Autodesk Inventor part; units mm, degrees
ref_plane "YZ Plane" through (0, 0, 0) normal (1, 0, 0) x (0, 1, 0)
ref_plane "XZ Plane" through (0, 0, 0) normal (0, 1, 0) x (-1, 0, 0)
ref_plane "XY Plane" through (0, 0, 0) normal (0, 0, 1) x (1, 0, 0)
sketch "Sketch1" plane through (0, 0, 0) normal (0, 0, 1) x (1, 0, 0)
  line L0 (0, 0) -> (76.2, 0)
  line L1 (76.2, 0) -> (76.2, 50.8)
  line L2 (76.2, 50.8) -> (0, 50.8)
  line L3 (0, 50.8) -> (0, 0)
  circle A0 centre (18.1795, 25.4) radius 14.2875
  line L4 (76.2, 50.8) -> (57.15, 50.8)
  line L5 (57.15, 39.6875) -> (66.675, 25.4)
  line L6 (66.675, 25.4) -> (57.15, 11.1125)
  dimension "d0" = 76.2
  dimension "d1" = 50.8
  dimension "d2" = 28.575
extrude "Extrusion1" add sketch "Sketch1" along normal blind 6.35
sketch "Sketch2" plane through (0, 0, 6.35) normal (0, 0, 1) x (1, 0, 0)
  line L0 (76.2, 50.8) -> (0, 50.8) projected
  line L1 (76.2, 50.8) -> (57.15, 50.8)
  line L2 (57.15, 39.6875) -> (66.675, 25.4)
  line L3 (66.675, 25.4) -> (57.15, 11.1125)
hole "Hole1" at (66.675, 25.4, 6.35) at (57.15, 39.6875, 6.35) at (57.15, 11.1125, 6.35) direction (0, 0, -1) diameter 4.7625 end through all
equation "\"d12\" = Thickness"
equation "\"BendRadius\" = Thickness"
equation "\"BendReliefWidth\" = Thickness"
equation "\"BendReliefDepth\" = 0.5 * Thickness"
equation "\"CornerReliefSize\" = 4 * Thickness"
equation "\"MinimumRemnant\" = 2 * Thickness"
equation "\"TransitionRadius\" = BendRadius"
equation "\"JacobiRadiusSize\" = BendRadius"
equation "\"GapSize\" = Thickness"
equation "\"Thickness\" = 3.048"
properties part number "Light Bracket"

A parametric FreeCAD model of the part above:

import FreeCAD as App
import Part
import Sketcher
from FreeCAD import Vector
Q = App.Units.Quantity

doc = App.newDocument("Part")
body = doc.addObject("PartDesign::Body", "Body")

sketch1 = doc.addObject("Sketcher::SketchObject", "Sketch")
body.addObject(sketch1)
sketch1.AttachmentSupport = (doc.XY_Plane, [""])
sketch1.MapMode = "FlatFace"
sketch1.addGeometry(Part.LineSegment(Vector(0, 51, 0), Vector(0, 0, 0)), False)
sketch1.addGeometry(Part.LineSegment(Vector(0, 0, 0), Vector(76, 0, 0)), False)
sketch1.addGeometry(Part.LineSegment(Vector(76, 0, 0), Vector(76, 51, 0)), False)
sketch1.addGeometry(Part.LineSegment(Vector(76, 51, 0), Vector(0, 51, 0)), False)
sketch1.addGeometry(Part.Circle(Vector(18, 25, 0), Vector(0, 0, 1), 14), False)
sketch1.addConstraint(Sketcher.Constraint("Coincident", 0, 2, 1, 1))
sketch1.addConstraint(Sketcher.Constraint("Coincident", 1, 2, 2, 1))
sketch1.addConstraint(Sketcher.Constraint("Coincident", 2, 2, 3, 1))
sketch1.addConstraint(Sketcher.Constraint("Coincident", 3, 2, 0, 1))
sketch1.addConstraint(Sketcher.Constraint("Vertical", 0))
sketch1.addConstraint(Sketcher.Constraint("Horizontal", 1))
sketch1.addConstraint(Sketcher.Constraint("Vertical", 2))
sketch1.addConstraint(Sketcher.Constraint("Horizontal", 3))
sketch1.addConstraint(Sketcher.Constraint("Coincident", 0, 2, -1, 1))
sketch1.addConstraint(Sketcher.Constraint("DistanceX", 1, 1, 1, 2, Q("3 in")))
sketch1.addConstraint(Sketcher.Constraint("DistanceY", 0, 2, 0, 1, Q("2 in")))
sketch1.addConstraint(Sketcher.Constraint("Diameter", 4, Q("1.125 in")))
sketch1.addConstraint(Sketcher.Constraint("DistanceY", -1, 1, 4, 3, Q("1 in")))
sketch1.addConstraint(Sketcher.Constraint("DistanceX", -1, 1, 4, 3, 18.1795))
pad1 = doc.addObject("PartDesign::Pad", "Pad")
body.addObject(pad1)
pad1.Profile = sketch1
pad1.Length = Q("0.25 in")

sketch2 = doc.addObject("Sketcher::SketchObject", "Sketch001")
body.addObject(sketch2)
sketch2.AttachmentSupport = (doc.XY_Plane, [""])
sketch2.MapMode = "FlatFace"
sketch2.AttachmentOffset = App.Placement(Vector(0, 0, 0.25 * 25.4), App.Rotation())
sketch2.addGeometry(Part.Circle(Vector(66.7, 25.4, 0), Vector(0, 0, 1), 2.4), False)
sketch2.addGeometry(Part.Circle(Vector(57.1, 39.7, 0), Vector(0, 0, 1), 2.4), False)
sketch2.addGeometry(Part.Circle(Vector(57.1, 11.1, 0), Vector(0, 0, 1), 2.4), False)
sketch2.addConstraint(Sketcher.Constraint("Equal", 0, 1))
sketch2.addConstraint(Sketcher.Constraint("Equal", 1, 2))
sketch2.addConstraint(Sketcher.Constraint("Vertical", 1, 3, 2, 3))
sketch2.addConstraint(Sketcher.Constraint("Diameter", 0, Q("0.1875 in")))
sketch2.addConstraint(Sketcher.Constraint("DistanceY", -1, 1, 0, 3, Q("1 in")))
sketch2.addConstraint(Sketcher.Constraint("DistanceX", -1, 1, 1, 3, Q("2.25 in")))
sketch2.addConstraint(Sketcher.Constraint("DistanceX", -1, 1, 0, 3, Q("2.625 in")))
sketch2.addConstraint(Sketcher.Constraint("DistanceY", -1, 1, 1, 3, Q("1.5625 in")))
sketch2.addConstraint(Sketcher.Constraint("DistanceY", -1, 1, 2, 3, Q("0.4375 in")))
doc.recompute()
hole = doc.addObject("PartDesign::Hole", "Hole")
body.addObject(hole)
hole.Profile = sketch2
hole.ThreadType = "None"
hole.Diameter = Q("0.1875 in")
hole.DepthType = "ThroughAll"

doc.recompute()
